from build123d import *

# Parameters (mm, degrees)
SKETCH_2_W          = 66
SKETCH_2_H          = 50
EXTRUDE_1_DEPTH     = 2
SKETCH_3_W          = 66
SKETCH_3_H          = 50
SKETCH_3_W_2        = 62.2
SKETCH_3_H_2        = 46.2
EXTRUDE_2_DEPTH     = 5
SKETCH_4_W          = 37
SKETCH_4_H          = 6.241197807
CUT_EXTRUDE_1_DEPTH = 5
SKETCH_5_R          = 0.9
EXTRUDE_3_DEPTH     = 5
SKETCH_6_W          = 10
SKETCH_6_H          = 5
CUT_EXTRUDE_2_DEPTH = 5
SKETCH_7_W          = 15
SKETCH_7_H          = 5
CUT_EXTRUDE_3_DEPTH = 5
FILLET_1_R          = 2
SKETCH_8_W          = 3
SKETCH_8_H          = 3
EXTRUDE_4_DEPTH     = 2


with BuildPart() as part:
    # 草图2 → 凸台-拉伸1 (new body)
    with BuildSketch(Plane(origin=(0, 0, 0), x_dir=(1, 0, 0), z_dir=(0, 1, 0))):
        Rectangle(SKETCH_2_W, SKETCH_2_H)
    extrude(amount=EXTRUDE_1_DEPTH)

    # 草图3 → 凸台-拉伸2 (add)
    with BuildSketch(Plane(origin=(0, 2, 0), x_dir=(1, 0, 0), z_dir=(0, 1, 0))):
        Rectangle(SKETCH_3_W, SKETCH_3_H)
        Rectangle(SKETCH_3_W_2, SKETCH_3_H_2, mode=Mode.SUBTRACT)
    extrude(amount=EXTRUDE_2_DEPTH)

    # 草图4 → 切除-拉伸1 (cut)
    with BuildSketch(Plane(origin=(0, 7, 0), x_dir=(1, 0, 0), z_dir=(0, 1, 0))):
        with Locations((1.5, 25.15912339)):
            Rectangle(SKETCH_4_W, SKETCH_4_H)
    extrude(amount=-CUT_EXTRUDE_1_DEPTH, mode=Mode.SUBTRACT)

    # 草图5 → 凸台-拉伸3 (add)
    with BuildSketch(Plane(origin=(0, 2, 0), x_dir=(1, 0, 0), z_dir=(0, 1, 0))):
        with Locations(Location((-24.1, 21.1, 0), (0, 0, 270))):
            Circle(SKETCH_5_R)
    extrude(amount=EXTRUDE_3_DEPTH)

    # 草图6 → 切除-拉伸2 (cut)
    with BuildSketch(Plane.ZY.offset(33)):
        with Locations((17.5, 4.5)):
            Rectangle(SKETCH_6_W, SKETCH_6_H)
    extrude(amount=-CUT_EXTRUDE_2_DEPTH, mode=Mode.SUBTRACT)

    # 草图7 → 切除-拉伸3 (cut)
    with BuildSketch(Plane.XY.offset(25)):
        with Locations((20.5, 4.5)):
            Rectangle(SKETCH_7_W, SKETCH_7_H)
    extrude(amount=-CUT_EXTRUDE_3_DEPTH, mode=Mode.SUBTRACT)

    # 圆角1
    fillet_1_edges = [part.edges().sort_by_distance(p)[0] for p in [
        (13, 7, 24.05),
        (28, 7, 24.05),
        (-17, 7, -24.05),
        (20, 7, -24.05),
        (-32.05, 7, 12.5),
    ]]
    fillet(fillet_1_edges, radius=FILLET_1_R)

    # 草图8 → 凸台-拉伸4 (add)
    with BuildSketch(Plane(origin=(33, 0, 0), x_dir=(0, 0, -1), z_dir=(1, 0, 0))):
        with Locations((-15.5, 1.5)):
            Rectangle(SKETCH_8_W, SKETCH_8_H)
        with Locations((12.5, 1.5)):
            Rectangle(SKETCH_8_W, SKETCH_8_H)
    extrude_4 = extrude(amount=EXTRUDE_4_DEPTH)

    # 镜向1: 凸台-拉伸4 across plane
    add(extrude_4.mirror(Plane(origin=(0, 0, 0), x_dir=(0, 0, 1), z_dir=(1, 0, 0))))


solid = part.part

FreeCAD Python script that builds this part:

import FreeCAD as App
import Part
import Sketcher

V = App.Vector
Q = App.Units.Quantity


def edges_at(feature, points):
    """Names of the edges that pass closest to the given points."""
    edges = feature.Shape.Edges
    near = lambda p: min(range(len(edges)), key=lambda i: edges[i].distToShape(Part.Vertex(*p))[0])
    return sorted({f"Edge{near(p) + 1}" for p in points})

doc = App.newDocument("Part")
body = doc.addObject("PartDesign::Body", "Body")

# Sketch on XZ plane
sketch1 = body.newObject("Sketcher::SketchObject", "Sketch")
sketch1.AttachmentSupport = (doc.getObject("XZ_Plane"), [""])
sketch1.MapMode = "FlatFace"
sketch1.addGeometry([
    Part.LineSegment(V(-33, -25, 0), V(-33, 25, 0)),
    Part.LineSegment(V(-33, 25, 0), V(33, 25, 0)),
    Part.LineSegment(V(33, 25, 0), V(33, -25, 0)),
    Part.LineSegment(V(33, -25, 0), V(-33, -25, 0)),
], False)
sketch1.addConstraint([
    Sketcher.Constraint("Coincident", 0, 2, 1, 1),
    Sketcher.Constraint("Coincident", 1, 2, 2, 1),
    Sketcher.Constraint("Coincident", 2, 2, 3, 1),
    Sketcher.Constraint("Coincident", 3, 2, 0, 1),
    Sketcher.Constraint("Vertical", 0),
    Sketcher.Constraint("Horizontal", 1),
    Sketcher.Constraint("Vertical", 2),
    Sketcher.Constraint("Horizontal", 3),
    Sketcher.Constraint("Symmetric", 0, 2, 2, 2, -1, 1),
    Sketcher.Constraint("DistanceX", 1, 1, 1, 2, Q("66 mm")),
    Sketcher.Constraint("DistanceY", 0, 1, 0, 2, Q("50 mm")),
])
pad1 = body.newObject("PartDesign::Pad", "Pad")
pad1.Profile = sketch1
pad1.Length = 2
pad1.Reversed = True

# Sketch on XZ plane
sketch2 = body.newObject("Sketcher::SketchObject", "Sketch001")
sketch2.AttachmentSupport = (doc.getObject("XZ_Plane"), [""])
sketch2.MapMode = "FlatFace"
sketch2.AttachmentOffset = App.Placement(V(0, 0, -2), App.Rotation())
sketch2.addGeometry([
    Part.LineSegment(V(-33, -25, 0), V(-33, 25, 0)),  # 0
    Part.LineSegment(V(-33, 25, 0), V(33, 25, 0)),  # 1
    Part.LineSegment(V(33, 25, 0), V(33, -25, 0)),  # 2
    Part.LineSegment(V(33, -25, 0), V(-33, -25, 0)),  # 3
    Part.LineSegment(V(31, 23, 0), V(-31, 23, 0)),  # 4
    Part.LineSegment(V(-31, 23, 0), V(-31, -23, 0)),  # 5
    Part.LineSegment(V(-31, -23, 0), V(31, -23, 0)),  # 6
    Part.LineSegment(V(31, -23, 0), V(31, 23, 0)),  # 7
], False)
sketch2.addConstraint([
    Sketcher.Constraint("Coincident", 0, 2, 1, 1),
    Sketcher.Constraint("Coincident", 1, 2, 2, 1),
    Sketcher.Constraint("Coincident", 2, 2, 3, 1),
    Sketcher.Constraint("Coincident", 3, 2, 0, 1),
    Sketcher.Constraint("Coincident", 4, 2, 5, 1),
    Sketcher.Constraint("Coincident", 5, 2, 6, 1),
    Sketcher.Constraint("Coincident", 6, 2, 7, 1),
    Sketcher.Constraint("Coincident", 7, 2, 4, 1),
    Sketcher.Constraint("Vertical", 0),
    Sketcher.Constraint("Horizontal", 1),
    Sketcher.Constraint("Vertical", 2),
    Sketcher.Constraint("Horizontal", 3),
    Sketcher.Constraint("Horizontal", 4),
    Sketcher.Constraint("Vertical", 5),
    Sketcher.Constraint("Horizontal", 6),
    Sketcher.Constraint("Vertical", 7),
    Sketcher.Constraint("Symmetric", 0, 2, 2, 2, -1, 1),
    Sketcher.Constraint("Symmetric", 4, 2, 6, 2, -1, 1),
    Sketcher.Constraint("DistanceX", 1, 1, 1, 2, Q("66 mm")),
    Sketcher.Constraint("DistanceY", 0, 1, 0, 2, Q("50 mm")),
    Sketcher.Constraint("DistanceX", 4, 2, 4, 1, Q("62.2 mm")),
    Sketcher.Constraint("DistanceY", 5, 2, 5, 1, Q("46.2 mm")),
])
pad2 = body.newObject("PartDesign::Pad", "Pad001")
pad2.Profile = sketch2
pad2.Length = 5
pad2.Reversed = True

# Sketch on XZ plane
sketch3 = body.newObject("Sketcher::SketchObject", "Sketch002")
sketch3.AttachmentSupport = (doc.getObject("XZ_Plane"), [""])
sketch3.MapMode = "FlatFace"
sketch3.AttachmentOffset = App.Placement(V(0, 0, -7), App.Rotation())
sketch3.addGeometry([
    Part.LineSegment(V(-17, -28, 0), V(-17, -22, 0)),
    Part.LineSegment(V(-17, -22, 0), V(20, -22, 0)),
    Part.LineSegment(V(20, -22, 0), V(20, -28, 0)),
    Part.LineSegment(V(20, -28, 0), V(-17, -28, 0)),
], False)
sketch3.addConstraint([
    Sketcher.Constraint("Coincident", 0, 2, 1, 1),
    Sketcher.Constraint("Coincident", 1, 2, 2, 1),
    Sketcher.Constraint("Coincident", 2, 2, 3, 1),
    Sketcher.Constraint("Coincident", 3, 2, 0, 1),
    Sketcher.Constraint("Vertical", 0),
    Sketcher.Constraint("Horizontal", 1),
    Sketcher.Constraint("Vertical", 2),
    Sketcher.Constraint("Horizontal", 3),
    Sketcher.Constraint("DistanceX", 1, 1, 1, 2, Q("37 mm")),
    Sketcher.Constraint("DistanceX", 0, 2, -1, 1, Q("17 mm")),
    Sketcher.Constraint("DistanceY", 0, 1, 0, 2, Q("6.241198 mm")),
    Sketcher.Constraint("DistanceY", 0, 2, -1, 1, Q("22.038524 mm")),
])
pocket1 = body.newObject("PartDesign::Pocket", "Pocket")
pocket1.Profile = sketch3
pocket1.Length = 5
pocket1.Reversed = True

# Sketch on XZ plane
sketch4 = body.newObject("Sketcher::SketchObject", "Sketch003")
sketch4.AttachmentSupport = (doc.getObject("XZ_Plane"), [""])
sketch4.MapMode = "FlatFace"
sketch4.AttachmentOffset = App.Placement(V(0, 0, -2), App.Rotation())
sketch4.addGeometry(Part.Circle(V(-24.1, -21.1, 0), V(0, 0, 1), 0.9), False)
sketch4.addConstraint([
    Sketcher.Constraint("Diameter", 0, Q("1.8 mm")),
    Sketcher.Constraint("DistanceX", 0, 3, -1, 1, Q("24.1 mm")),
    Sketcher.Constraint("DistanceY", 0, 3, -1, 1, Q("21.1 mm")),
])
pad3 = body.newObject("PartDesign::Pad", "Pad002")
pad3.Profile = sketch4
pad3.Length = 5
pad3.Reversed = True

# Sketch on YZ plane
sketch5 = body.newObject("Sketcher::SketchObject", "Sketch004")
sketch5.AttachmentSupport = (doc.getObject("YZ_Plane"), [""])
sketch5.MapMode = "FlatFace"
sketch5.AttachmentOffset = App.Placement(V(0, 0, -33), App.Rotation())
sketch5.addGeometry([
    Part.LineSegment(V(7, 12, 0), V(2, 12, 0)),
    Part.LineSegment(V(2, 12, 0), V(2, 22, 0)),
    Part.LineSegment(V(2, 22, 0), V(7, 22, 0)),
    Part.LineSegment(V(7, 22, 0), V(7, 12, 0)),
], False)
sketch5.addConstraint([
    Sketcher.Constraint("Coincident", 0, 2, 1, 1),
    Sketcher.Constraint("Coincident", 1, 2, 2, 1),
    Sketcher.Constraint("Coincident", 2, 2, 3, 1),
    Sketcher.Constraint("Coincident", 3, 2, 0, 1),
    Sketcher.Constraint("Horizontal", 0),
    Sketcher.Constraint("Vertical", 1),
    Sketcher.Constraint("Horizontal", 2),
    Sketcher.Constraint("Vertical", 3),
    Sketcher.Constraint("DistanceX", 0, 2, 0, 1, Q("5 mm")),
    Sketcher.Constraint("DistanceY", 1, 1, 1, 2, Q("10 mm")),
    Sketcher.Constraint("DistanceX", -1, 1, 0, 2, Q("2 mm")),
    Sketcher.Constraint("DistanceY", -1, 1, 0, 2, Q("12.5 mm")),
])
pocket2 = body.newObject("PartDesign::Pocket", "Pocket001")
pocket2.Profile = sketch5
pocket2.Length = 5
pocket2.Reversed = True

# Sketch on XY plane
sketch6 = body.newObject("Sketcher::SketchObject", "Sketch005")
sketch6.AttachmentSupport = (doc.getObject("XY_Plane"), [""])
sketch6.MapMode = "FlatFace"
sketch6.AttachmentOffset = App.Placement(V(0, 0, 25), App.Rotation())
sketch6.addGeometry([
    Part.LineSegment(V(13, 7, 0), V(13, 2, 0)),
    Part.LineSegment(V(13, 2, 0), V(28, 2, 0)),
    Part.LineSegment(V(28, 2, 0), V(28, 7, 0)),
    Part.LineSegment(V(28, 7, 0), V(13, 7, 0)),
], False)
sketch6.addConstraint([
    Sketcher.Constraint("Coincident", 0, 2, 1, 1),
    Sketcher.Constraint("Coincident", 1, 2, 2, 1),
    Sketcher.Constraint("Coincident", 2, 2, 3, 1),
    Sketcher.Constraint("Coincident", 3, 2, 0, 1),
    Sketcher.Constraint("Vertical", 0),
    Sketcher.Constraint("Horizontal", 1),
    Sketcher.Constraint("Vertical", 2),
    Sketcher.Constraint("Horizontal", 3),
    Sketcher.Constraint("DistanceX", 1, 1, 1, 2, Q("15 mm")),
    Sketcher.Constraint("DistanceY", 0, 2, 0, 1, Q("5 mm")),
    Sketcher.Constraint("DistanceX", -1, 1, 0, 2, Q("13 mm")),
    Sketcher.Constraint("DistanceY", -1, 1, 0, 2, Q("2 mm")),
])
pocket3 = body.newObject("PartDesign::Pocket", "Pocket002")
pocket3.Profile = sketch6
pocket3.Length = 5
doc.recompute()

fillet = body.newObject("PartDesign::Fillet", "Fillet")
fillet.Base = (pocket3, edges_at(pocket3, [
    (13, 7, 24.05),
    (28, 7, 24.05),
    (-17, 7, -24.05),
    (20, 7, -24.05),
    (-32.05, 7, 12.5),
]))
fillet.Radius = 2

# Sketch on YZ plane
sketch7 = body.newObject("Sketcher::SketchObject", "Sketch006")
sketch7.AttachmentSupport = (doc.getObject("YZ_Plane"), [""])
sketch7.MapMode = "FlatFace"
sketch7.AttachmentOffset = App.Placement(V(0, 0, 33), App.Rotation())
sketch7.addGeometry([
    Part.LineSegment(V(3, 17, 0), V(0, 17, 0)),  # 0
    Part.LineSegment(V(0, 17, 0), V(0, 14, 0)),  # 1
    Part.LineSegment(V(0, 14, 0), V(3, 14, 0)),  # 2
    Part.LineSegment(V(3, 14, 0), V(3, 17, 0)),  # 3
    Part.LineSegment(V(3, -11, 0), V(0, -11, 0)),  # 4
    Part.LineSegment(V(0, -11, 0), V(0, -14, 0)),  # 5
    Part.LineSegment(V(0, -14, 0), V(3, -14, 0)),  # 6
    Part.LineSegment(V(3, -14, 0), V(3, -11, 0)),  # 7
], False)
sketch7.addConstraint([
    Sketcher.Constraint("Coincident", 0, 2, 1, 1),
    Sketcher.Constraint("Coincident", 1, 2, 2, 1),
    Sketcher.Constraint("Coincident", 2, 2, 3, 1),
    Sketcher.Constraint("Coincident", 3, 2, 0, 1),
    Sketcher.Constraint("Coincident", 4, 2, 5, 1),
    Sketcher.Constraint("Coincident", 5, 2, 6, 1),
    Sketcher.Constraint("Coincident", 6, 2, 7, 1),
    Sketcher.Constraint("Coincident", 7, 2, 4, 1),
    Sketcher.Constraint("Horizontal", 0),
    Sketcher.Constraint("Vertical", 1),
    Sketcher.Constraint("Horizontal", 2),
    Sketcher.Constraint("Vertical", 3),
    Sketcher.Constraint("Horizontal", 4),
    Sketcher.Constraint("Vertical", 5),
    Sketcher.Constraint("Horizontal", 6),
    Sketcher.Constraint("Vertical", 7),
    Sketcher.Constraint("Symmetric", 1, 2, 5, 2, -1, 1),
    Sketcher.Constraint("PointOnObject", 0, 2, -2),
    Sketcher.Constraint("Vertical", 3, 2, 6, 2),
    Sketcher.Constraint("Equal", 6, 1),
    Sketcher.Constraint("Equal", 3, 5),
    Sketcher.Constraint("DistanceX", 0, 2, 0, 1, Q("3 mm")),
    Sketcher.Constraint("DistanceY", -1, 1, 0, 2, Q("17 mm")),
])
pad4 = body.newObject("PartDesign::Pad", "Pad003")
pad4.Profile = sketch7
pad4.Length = 2
doc.recompute()

mirrored = body.newObject("PartDesign::Mirrored", "Mirrored")
mirrored.Originals = [pad4]
mirrored.MirrorPlane = (doc.getObject("YZ_Plane"), [""])
body.Tip = mirrored

doc.recompute()
